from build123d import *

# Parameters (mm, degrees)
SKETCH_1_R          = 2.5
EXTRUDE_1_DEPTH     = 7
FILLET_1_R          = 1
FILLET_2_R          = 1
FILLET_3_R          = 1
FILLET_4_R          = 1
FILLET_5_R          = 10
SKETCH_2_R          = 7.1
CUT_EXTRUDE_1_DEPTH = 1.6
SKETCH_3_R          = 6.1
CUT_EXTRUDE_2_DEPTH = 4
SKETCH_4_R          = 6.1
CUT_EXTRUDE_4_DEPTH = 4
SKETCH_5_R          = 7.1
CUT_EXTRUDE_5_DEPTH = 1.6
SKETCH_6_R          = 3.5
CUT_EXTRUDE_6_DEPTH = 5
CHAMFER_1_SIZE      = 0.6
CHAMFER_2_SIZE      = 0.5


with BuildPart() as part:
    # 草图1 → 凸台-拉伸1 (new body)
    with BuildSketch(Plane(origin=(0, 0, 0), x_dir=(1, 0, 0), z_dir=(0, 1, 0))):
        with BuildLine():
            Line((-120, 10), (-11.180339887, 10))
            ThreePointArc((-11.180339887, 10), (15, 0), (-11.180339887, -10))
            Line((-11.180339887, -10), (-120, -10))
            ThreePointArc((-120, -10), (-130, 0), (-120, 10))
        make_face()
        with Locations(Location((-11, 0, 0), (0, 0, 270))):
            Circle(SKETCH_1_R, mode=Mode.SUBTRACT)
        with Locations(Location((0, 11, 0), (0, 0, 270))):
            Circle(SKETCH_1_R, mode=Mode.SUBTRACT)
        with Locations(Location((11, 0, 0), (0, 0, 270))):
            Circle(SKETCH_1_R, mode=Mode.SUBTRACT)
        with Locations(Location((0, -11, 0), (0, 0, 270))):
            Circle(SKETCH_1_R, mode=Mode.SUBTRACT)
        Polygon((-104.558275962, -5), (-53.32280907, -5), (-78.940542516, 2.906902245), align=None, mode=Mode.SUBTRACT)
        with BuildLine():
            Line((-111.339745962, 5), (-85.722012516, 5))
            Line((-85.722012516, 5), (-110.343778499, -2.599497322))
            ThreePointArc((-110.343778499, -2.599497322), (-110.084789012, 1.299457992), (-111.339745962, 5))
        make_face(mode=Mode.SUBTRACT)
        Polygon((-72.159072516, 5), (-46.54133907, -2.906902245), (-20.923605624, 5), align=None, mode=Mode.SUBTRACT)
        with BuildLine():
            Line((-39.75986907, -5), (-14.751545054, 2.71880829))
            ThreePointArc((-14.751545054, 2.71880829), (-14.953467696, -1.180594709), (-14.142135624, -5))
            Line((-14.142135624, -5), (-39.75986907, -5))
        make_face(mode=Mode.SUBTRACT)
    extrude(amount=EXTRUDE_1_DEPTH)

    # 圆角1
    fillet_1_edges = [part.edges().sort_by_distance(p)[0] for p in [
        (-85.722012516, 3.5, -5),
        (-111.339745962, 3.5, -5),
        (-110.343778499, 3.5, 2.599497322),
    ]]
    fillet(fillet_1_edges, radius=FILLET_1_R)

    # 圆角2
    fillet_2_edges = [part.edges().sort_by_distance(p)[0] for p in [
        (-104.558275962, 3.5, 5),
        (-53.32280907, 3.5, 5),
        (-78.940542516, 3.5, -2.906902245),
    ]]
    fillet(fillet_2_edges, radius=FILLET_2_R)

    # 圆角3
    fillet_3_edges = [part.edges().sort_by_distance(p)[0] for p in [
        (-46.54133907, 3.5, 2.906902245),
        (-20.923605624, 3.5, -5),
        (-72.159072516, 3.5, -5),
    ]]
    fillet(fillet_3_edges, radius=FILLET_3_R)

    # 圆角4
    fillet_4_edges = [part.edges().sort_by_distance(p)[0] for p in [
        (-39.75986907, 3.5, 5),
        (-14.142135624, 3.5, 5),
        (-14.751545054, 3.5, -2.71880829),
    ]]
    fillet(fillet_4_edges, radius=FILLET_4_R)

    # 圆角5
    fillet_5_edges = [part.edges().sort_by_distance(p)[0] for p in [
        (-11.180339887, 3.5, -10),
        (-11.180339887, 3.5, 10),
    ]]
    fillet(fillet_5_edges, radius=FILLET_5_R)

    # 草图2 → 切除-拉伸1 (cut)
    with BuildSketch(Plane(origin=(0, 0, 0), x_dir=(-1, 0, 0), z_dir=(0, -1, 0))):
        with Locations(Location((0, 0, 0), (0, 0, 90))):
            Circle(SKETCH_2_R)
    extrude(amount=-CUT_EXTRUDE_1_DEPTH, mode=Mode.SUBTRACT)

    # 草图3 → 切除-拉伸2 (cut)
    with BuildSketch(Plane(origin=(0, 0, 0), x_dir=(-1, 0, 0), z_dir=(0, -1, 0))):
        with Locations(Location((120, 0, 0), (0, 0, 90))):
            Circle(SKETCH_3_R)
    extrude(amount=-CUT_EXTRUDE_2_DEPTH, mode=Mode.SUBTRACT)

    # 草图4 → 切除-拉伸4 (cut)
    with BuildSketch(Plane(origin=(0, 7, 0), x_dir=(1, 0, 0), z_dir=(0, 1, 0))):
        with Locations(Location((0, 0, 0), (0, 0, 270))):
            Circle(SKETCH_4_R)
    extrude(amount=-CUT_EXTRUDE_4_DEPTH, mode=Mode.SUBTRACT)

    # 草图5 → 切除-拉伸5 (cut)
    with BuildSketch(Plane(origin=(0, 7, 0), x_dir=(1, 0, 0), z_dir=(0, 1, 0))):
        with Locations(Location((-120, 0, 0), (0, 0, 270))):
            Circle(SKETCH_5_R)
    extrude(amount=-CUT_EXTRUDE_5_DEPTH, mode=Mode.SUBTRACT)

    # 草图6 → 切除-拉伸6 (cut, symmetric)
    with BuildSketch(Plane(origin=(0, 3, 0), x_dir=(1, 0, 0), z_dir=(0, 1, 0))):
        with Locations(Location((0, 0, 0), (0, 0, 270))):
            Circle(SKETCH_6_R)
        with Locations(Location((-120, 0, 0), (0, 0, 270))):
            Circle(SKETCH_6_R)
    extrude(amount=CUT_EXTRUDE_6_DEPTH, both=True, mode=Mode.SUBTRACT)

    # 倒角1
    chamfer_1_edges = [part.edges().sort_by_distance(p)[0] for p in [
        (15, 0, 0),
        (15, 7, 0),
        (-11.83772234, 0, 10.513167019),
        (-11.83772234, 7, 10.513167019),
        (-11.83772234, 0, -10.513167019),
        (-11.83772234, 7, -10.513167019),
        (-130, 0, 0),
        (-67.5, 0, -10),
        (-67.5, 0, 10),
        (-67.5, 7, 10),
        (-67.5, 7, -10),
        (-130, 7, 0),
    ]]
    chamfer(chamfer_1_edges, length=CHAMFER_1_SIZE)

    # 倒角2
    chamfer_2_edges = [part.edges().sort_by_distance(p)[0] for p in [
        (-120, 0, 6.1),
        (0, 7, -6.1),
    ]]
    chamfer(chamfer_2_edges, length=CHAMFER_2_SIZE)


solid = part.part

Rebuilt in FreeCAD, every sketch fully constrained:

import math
import FreeCAD as App
import Part
import Sketcher
from FreeCAD import Vector


def edges_at(feature, points):
    """Names of the edges that pass closest to the given points."""
    edges = feature.Shape.Edges
    near = lambda p: min(range(len(edges)), key=lambda i: edges[i].distToShape(Part.Vertex(*p))[0])
    return sorted({f"Edge{near(p) + 1}" for p in points})

doc = App.newDocument("Part")
params = doc.addObject("Spreadsheet::Sheet", "Params")
for row, (alias, value) in enumerate([
    ("sketch1_diameter", "5 mm"),
    ("sketch1_radius", "10 mm"),
    ("sketch1_radius2", "15 mm"),
    ("pad1_length", "7 mm"),
    ("fillet_radius", "1 mm"),
    ("fillet2_radius", "1 mm"),
    ("fillet3_radius", "1 mm"),
    ("fillet4_radius", "1 mm"),
    ("fillet5_radius", "10 mm"),
    ("sketch2_diameter", "14.2 mm"),
    ("pocket1_length", "1.6 mm"),
    ("sketch3_diameter", "12.2 mm"),
    ("pocket2_length", "4 mm"),
    ("sketch4_diameter", "12.2 mm"),
    ("pocket3_length", "4 mm"),
    ("sketch5_diameter", "14.2 mm"),
    ("pocket4_length", "1.6 mm"),
    ("sketch6_diameter", "7 mm"),
    ("pocket5_length", "10 mm"),
    ("chamfer_size", "0.6 mm"),
    ("chamfer2_size", "0.5 mm"),
], start=1):
    params.set(f"A{row}", alias)
    params.set(f"B{row}", "=" + value)
    params.setAlias(f"B{row}", alias)

body = doc.addObject("PartDesign::Body", "Body")

sketch1 = doc.addObject("Sketcher::SketchObject", "Sketch")
body.addObject(sketch1)
sketch1.AttachmentSupport = (doc.XZ_Plane, [""])
sketch1.MapMode = "FlatFace"
sketch1.addGeometry([
    Part.LineSegment(Vector(-11.18034, -10, 0), Vector(-120, -10, 0)),
    Part.ArcOfCircle(Part.Circle(Vector(-120, 0, 0), Vector(0, 0, 1), 10), math.radians(90), math.radians(270)),
    Part.LineSegment(Vector(-120, 10, 0), Vector(-11.18034, 10, 0)),
    Part.ArcOfCircle(Part.Circle(Vector(0, 0, 0), Vector(0, 0, 1), 15), math.radians(-138.189685), math.radians(138.189685)),
    Part.Circle(Vector(0, 11, 0), Vector(0, 0, 1), 2.5),
    Part.LineSegment(Vector(-39.759869, 5, 0), Vector(-14.751545, -2.718808, 0)),
    Part.ArcOfCircle(Part.Circle(Vector(0, 0, 0), Vector(0, 0, 1), 15), math.radians(160.528779), math.radians(190.442804)),
    Part.LineSegment(Vector(-14.142136, 5, 0), Vector(-39.759869, 5, 0)),
    Part.LineSegment(Vector(-104.558276, 5, 0), Vector(-78.940543, -2.906902, 0)),
    Part.LineSegment(Vector(-78.940543, -2.906902, 0), Vector(-53.322809, 5, 0)),
    Part.LineSegment(Vector(-53.322809, 5, 0), Vector(-104.558276, 5, 0)),
    Part.Circle(Vector(11, 0, 0), Vector(0, 0, 1), 2.5),
    Part.Circle(Vector(-11, 0, 0), Vector(0, 0, 1), 2.5),
    Part.LineSegment(Vector(-72.159073, -5, 0), Vector(-20.923606, -5, 0)),
    Part.LineSegment(Vector(-20.923606, -5, 0), Vector(-46.541339, 2.906902, 0)),
    Part.LineSegment(Vector(-46.541339, 2.906902, 0), Vector(-72.159073, -5, 0)),
    Part.Circle(Vector(0, -11, 0), Vector(0, 0, 1), 2.5),
    Part.LineSegment(Vector(-111.339746, -5, 0), Vector(-85.722013, -5, 0)),
    Part.LineSegment(Vector(-85.722013, -5, 0), Vector(-110.343778, 2.599497, 0)),
    Part.ArcOfCircle(Part.Circle(Vector(-120, 0, 0), Vector(0, 0, 1), 10), math.radians(-30), math.radians(15.067079)),
], False)
sketch1.addConstraint([
    Sketcher.Constraint("Tangent", 0, 2, 1, 2),
    Sketcher.Constraint("Tangent", 1, 1, 2, 1),
    Sketcher.Constraint("Coincident", 2, 2, 3, 2),
    Sketcher.Constraint("Coincident", 3, 1, 0, 1),
    Sketcher.Constraint("Coincident", 5, 2, 6, 2),
    Sketcher.Constraint("Coincident", 6, 1, 7, 1),
    Sketcher.Constraint("Coincident", 7, 2, 5, 1),
    Sketcher.Constraint("Coincident", 8, 2, 9, 1),
    Sketcher.Constraint("Coincident", 9, 2, 10, 1),
    Sketcher.Constraint("Coincident", 10, 2, 8, 1),
    Sketcher.Constraint("Coincident", 13, 2, 14, 1),
    Sketcher.Constraint("Coincident", 14, 2, 15, 1),
    Sketcher.Constraint("Coincident", 15, 2, 13, 1),
    Sketcher.Constraint("Coincident", 17, 2, 18, 1),
    Sketcher.Constraint("Coincident", 18, 2, 19, 2),
    Sketcher.Constraint("Coincident", 19, 1, 17, 1),
    Sketcher.Constraint("Horizontal", 0),
    Sketcher.Constraint("Horizontal", 2),
    Sketcher.Constraint("Horizontal", 7),
    Sketcher.Constraint("Horizontal", 10),
    Sketcher.Constraint("Horizontal", 13),
    Sketcher.Constraint("Horizontal", 17),
    Sketcher.Constraint("Coincident", 3, 3, -1, 1),
    Sketcher.Constraint("Coincident", 6, 3, -1, 1),
    Sketcher.Constraint("Coincident", 19, 3, 1, 3),
    Sketcher.Constraint("Equal", 3, 6),
    Sketcher.Constraint("Equal", 4, 11),
    Sketcher.Constraint("Equal", 11, 12),
    Sketcher.Constraint("Equal", 12, 16),
    Sketcher.Constraint("Equal", 1, 19),
    Sketcher.Constraint("Symmetric", 11, 3, 12, 3, -1, 1),
    Sketcher.Constraint("Symmetric", 4, 3, 16, 3, -1, 1),
    Sketcher.Constraint("PointOnObject", 1, 3, -1),
    Sketcher.Constraint("PointOnObject", 4, 3, -2),
    Sketcher.Constraint("PointOnObject", 11, 3, -1),
    Sketcher.Constraint("Parallel", 5, 8),
    Sketcher.Constraint("Parallel", 8, 14),
    Sketcher.Constraint("Parallel", 9, 15),
    Sketcher.Constraint("Parallel", 14, 18),
    Sketcher.Constraint("Horizontal", 7, 2, 9, 2),
    Sketcher.Constraint("Horizontal", 15, 2, 17, 2),
    Sketcher.Constraint("Equal", 10, 13),
    Sketcher.Constraint("Equal", 7, 17),
    Sketcher.Constraint("Equal", 8, 9),
    Sketcher.Constraint("Diameter", 4, 5.0),
    Sketcher.Constraint("Radius", 1, 10.0),
    Sketcher.Constraint("Radius", 3, 15.0),
    Sketcher.Constraint("DistanceX", 1, 3, -1, 1, 120.0),
    Sketcher.Constraint("DistanceY", -1, 1, 4, 3, 11.0),
    Sketcher.Constraint("DistanceX", -1, 1, 11, 3, 11.0),
    Sketcher.Constraint("DistanceY", -1, 1, 6, 1, 5.0),
    Sketcher.Constraint("DistanceY", 13, 2, -1, 1, 5.0),
    Sketcher.Constraint("Distance", 8, 26.81021),
    Sketcher.Constraint("Distance", 18, 25.767882),
    Sketcher.Constraint("DistanceX", 7, 2, 7, 1, 25.617733),
    Sketcher.Constraint("DistanceX", 9, 2, -1, 1, 53.322809),
    Sketcher.Constraint("DistanceX", 14, 2, -1, 1, 46.541339),
])
sketch1.setExpression("Constraints[44]", "Params.sketch1_diameter")
sketch1.setExpression("Constraints[45]", "Params.sketch1_radius")
sketch1.setExpression("Constraints[46]", "Params.sketch1_radius2")
pad1 = doc.addObject("PartDesign::Pad", "Pad")
body.addObject(pad1)
pad1.Profile = sketch1
pad1.setExpression("Length", "Params.pad1_length")
pad1.Reversed = True
doc.recompute()

fillet = doc.addObject("PartDesign::Fillet", "Fillet")
body.addObject(fillet)
fillet.Base = (pad1, edges_at(pad1, [(-85.722, 3.5, -5), (-111.34, 3.5, -5), (-110.344, 3.5, 2.599)]))
fillet.setExpression("Radius", "Params.fillet_radius")
doc.recompute()

fillet2 = doc.addObject("PartDesign::Fillet", "Fillet001")
body.addObject(fillet2)
fillet2.Base = (fillet, edges_at(fillet, [(-104.558, 3.5, 5), (-53.323, 3.5, 5), (-78.941, 3.5, -2.907)]))
fillet2.setExpression("Radius", "Params.fillet2_radius")
doc.recompute()

fillet3 = doc.addObject("PartDesign::Fillet", "Fillet002")
body.addObject(fillet3)
fillet3.Base = (fillet2, edges_at(fillet2, [(-46.541, 3.5, 2.907), (-20.924, 3.5, -5), (-72.159, 3.5, -5)]))
fillet3.setExpression("Radius", "Params.fillet3_radius")
doc.recompute()

fillet4 = doc.addObject("PartDesign::Fillet", "Fillet003")
body.addObject(fillet4)
fillet4.Base = (fillet3, edges_at(fillet3, [(-39.76, 3.5, 5), (-14.142, 3.5, 5), (-14.752, 3.5, -2.719)]))
fillet4.setExpression("Radius", "Params.fillet4_radius")
doc.recompute()

fillet5 = doc.addObject("PartDesign::Fillet", "Fillet004")
body.addObject(fillet5)
fillet5.Base = (fillet4, edges_at(fillet4, [(-11.18, 3.5, -10), (-11.18, 3.5, 10)]))
fillet5.setExpression("Radius", "Params.fillet5_radius")

sketch2 = doc.addObject("Sketcher::SketchObject", "Sketch001")
body.addObject(sketch2)
sketch2.AttachmentSupport = (doc.XZ_Plane, [""])
sketch2.MapMode = "FlatFace"
sketch2.addGeometry(Part.Circle(Vector(0, 0, 0), Vector(0, 0, 1), 7.1), False)
sketch2.addConstraint([
    Sketcher.Constraint("Coincident", 0, 3, -1, 1),
    Sketcher.Constraint("Diameter", 0, 14.2),
])
sketch2.setExpression("Constraints[1]", "Params.sketch2_diameter")
pocket1 = doc.addObject("PartDesign::Pocket", "Pocket")
body.addObject(pocket1)
pocket1.Profile = sketch2
pocket1.setExpression("Length", "Params.pocket1_length")

sketch3 = doc.addObject("Sketcher::SketchObject", "Sketch002")
body.addObject(sketch3)
sketch3.AttachmentSupport = (doc.XZ_Plane, [""])
sketch3.MapMode = "FlatFace"
sketch3.addGeometry(Part.Circle(Vector(-120, 0, 0), Vector(0, 0, 1), 6.1), False)
sketch3.addConstraint([
    Sketcher.Constraint("PointOnObject", 0, 3, -1),
    Sketcher.Constraint("Diameter", 0, 12.2),
    Sketcher.Constraint("DistanceX", 0, 3, -1, 1, 120.0),
])
sketch3.setExpression("Constraints[1]", "Params.sketch3_diameter")
pocket2 = doc.addObject("PartDesign::Pocket", "Pocket001")
body.addObject(pocket2)
pocket2.Profile = sketch3
pocket2.setExpression("Length", "Params.pocket2_length")

sketch4 = doc.addObject("Sketcher::SketchObject", "Sketch003")
body.addObject(sketch4)
sketch4.AttachmentSupport = (doc.XZ_Plane, [""])
sketch4.MapMode = "FlatFace"
sketch4.AttachmentOffset = App.Placement(Vector(0, 0, -7), App.Rotation())
sketch4.addGeometry(Part.Circle(Vector(0, 0, 0), Vector(0, 0, 1), 6.1), False)
sketch4.addConstraint([
    Sketcher.Constraint("Coincident", 0, 3, -1, 1),
    Sketcher.Constraint("Diameter", 0, 12.2),
])
sketch4.setExpression("Constraints[1]", "Params.sketch4_diameter")
pocket3 = doc.addObject("PartDesign::Pocket", "Pocket002")
body.addObject(pocket3)
pocket3.Profile = sketch4
pocket3.setExpression("Length", "Params.pocket3_length")
pocket3.Reversed = True

sketch5 = doc.addObject("Sketcher::SketchObject", "Sketch004")
body.addObject(sketch5)
sketch5.AttachmentSupport = (doc.XZ_Plane, [""])
sketch5.MapMode = "FlatFace"
sketch5.AttachmentOffset = App.Placement(Vector(0, 0, -7), App.Rotation())
sketch5.addGeometry(Part.Circle(Vector(-120, 0, 0), Vector(0, 0, 1), 7.1), False)
sketch5.addConstraint([
    Sketcher.Constraint("PointOnObject", 0, 3, -1),
    Sketcher.Constraint("Diameter", 0, 14.2),
    Sketcher.Constraint("DistanceX", 0, 3, -1, 1, 120.0),
])
sketch5.setExpression("Constraints[1]", "Params.sketch5_diameter")
pocket4 = doc.addObject("PartDesign::Pocket", "Pocket003")
body.addObject(pocket4)
pocket4.Profile = sketch5
pocket4.setExpression("Length", "Params.pocket4_length")
pocket4.Reversed = True

sketch6 = doc.addObject("Sketcher::SketchObject", "Sketch005")
body.addObject(sketch6)
sketch6.AttachmentSupport = (doc.XZ_Plane, [""])
sketch6.MapMode = "FlatFace"
sketch6.AttachmentOffset = App.Placement(Vector(0, 0, -3), App.Rotation())
sketch6.addGeometry([
    Part.Circle(Vector(0, 0, 0), Vector(0, 0, 1), 3.5),
    Part.Circle(Vector(-120, 0, 0), Vector(0, 0, 1), 3.5),
], False)
sketch6.addConstraint([
    Sketcher.Constraint("Coincident", 0, 3, -1, 1),
    Sketcher.Constraint("Equal", 0, 1),
    Sketcher.Constraint("PointOnObject", 1, 3, -1),
    Sketcher.Constraint("Diameter", 0, 7.0),
    Sketcher.Constraint("DistanceX", 1, 3, -1, 1, 120.0),
])
sketch6.setExpression("Constraints[3]", "Params.sketch6_diameter")
pocket5 = doc.addObject("PartDesign::Pocket", "Pocket004")
body.addObject(pocket5)
pocket5.Profile = sketch6
pocket5.setExpression("Length", "Params.pocket5_length")
pocket5.Midplane = True
doc.recompute()

chamfer = doc.addObject("PartDesign::Chamfer", "Chamfer")
body.addObject(chamfer)
chamfer.Base = (pocket5, edges_at(pocket5, [
    (15, 0, 0),
    (15, 7, 0),
    (-11.838, 0, 10.513),
    (-11.838, 7, 10.513),
    (-11.838, 0, -10.513),
    (-11.838, 7, -10.513),
    (-130, 0, 0),
    (-67.5, 0, -10),
    (-67.5, 0, 10),
    (-67.5, 7, 10),
    (-67.5, 7, -10),
    (-130, 7, 0),
]))
chamfer.setExpression("Size", "Params.chamfer_size")
doc.recompute()

chamfer2 = doc.addObject("PartDesign::Chamfer", "Chamfer001")
body.addObject(chamfer2)
chamfer2.Base = (chamfer, edges_at(chamfer, [(-120, 0, 6.1), (0, 7, -6.1)]))
chamfer2.setExpression("Size", "Params.chamfer2_size")

doc.recompute()
